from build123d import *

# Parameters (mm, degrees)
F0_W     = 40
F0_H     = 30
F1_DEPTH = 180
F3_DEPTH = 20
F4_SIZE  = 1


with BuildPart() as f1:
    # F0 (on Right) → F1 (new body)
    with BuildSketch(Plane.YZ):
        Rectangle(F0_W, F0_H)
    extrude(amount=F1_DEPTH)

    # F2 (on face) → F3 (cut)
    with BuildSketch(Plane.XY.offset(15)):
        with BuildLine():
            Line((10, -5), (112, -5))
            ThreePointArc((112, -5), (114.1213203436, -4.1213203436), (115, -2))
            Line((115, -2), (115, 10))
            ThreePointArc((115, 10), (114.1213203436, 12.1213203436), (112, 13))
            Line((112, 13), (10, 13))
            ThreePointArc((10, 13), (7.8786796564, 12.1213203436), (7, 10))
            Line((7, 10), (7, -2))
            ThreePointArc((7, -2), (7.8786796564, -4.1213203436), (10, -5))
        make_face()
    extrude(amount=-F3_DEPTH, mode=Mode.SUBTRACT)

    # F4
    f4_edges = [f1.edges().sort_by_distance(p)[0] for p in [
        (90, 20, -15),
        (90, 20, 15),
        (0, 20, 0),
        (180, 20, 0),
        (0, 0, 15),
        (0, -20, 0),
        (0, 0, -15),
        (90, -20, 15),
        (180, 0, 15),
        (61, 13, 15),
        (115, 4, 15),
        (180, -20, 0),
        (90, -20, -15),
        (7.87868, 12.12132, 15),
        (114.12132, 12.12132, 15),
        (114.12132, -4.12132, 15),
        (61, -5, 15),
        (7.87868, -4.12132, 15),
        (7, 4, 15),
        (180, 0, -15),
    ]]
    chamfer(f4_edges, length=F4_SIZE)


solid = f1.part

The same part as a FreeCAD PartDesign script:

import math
import FreeCAD as App
import Part
import Sketcher

V = App.Vector
Q = App.Units.Quantity


def edges_at(feature, points):
    """Names of the edges that pass closest to the given points."""
    edges = feature.Shape.Edges
    near = lambda p: min(range(len(edges)), key=lambda i: edges[i].distToShape(Part.Vertex(*p))[0])
    return sorted({f"Edge{near(p) + 1}" for p in points})

doc = App.newDocument("Part")
body = doc.addObject("PartDesign::Body", "Body")

# Sketch on YZ plane
sketch1 = doc.addObject("Sketcher::SketchObject", "Sketch")
body.addObject(sketch1)
sketch1.AttachmentSupport = (doc.YZ_Plane, [""])
sketch1.MapMode = "FlatFace"
sketch1.addGeometry([
    Part.LineSegment(V(-20, 15, 0), V(-20, -15, 0)),
    Part.LineSegment(V(-20, -15, 0), V(20, -15, 0)),
    Part.LineSegment(V(20, -15, 0), V(20, 15, 0)),
    Part.LineSegment(V(20, 15, 0), V(-20, 15, 0)),
], False)
sketch1.addConstraint([
    Sketcher.Constraint("Coincident", 0, 2, 1, 1),
    Sketcher.Constraint("Coincident", 1, 2, 2, 1),
    Sketcher.Constraint("Coincident", 2, 2, 3, 1),
    Sketcher.Constraint("Coincident", 3, 2, 0, 1),
    Sketcher.Constraint("Vertical", 0),
    Sketcher.Constraint("Horizontal", 1),
    Sketcher.Constraint("Vertical", 2),
    Sketcher.Constraint("Horizontal", 3),
    Sketcher.Constraint("Symmetric", 0, 2, 2, 2, -1, 1),
    Sketcher.Constraint("DistanceX", 1, 1, 1, 2, Q("40 mm")),
    Sketcher.Constraint("DistanceY", 0, 2, 0, 1, Q("30 mm")),
])
pad1 = doc.addObject("PartDesign::Pad", "Pad")
body.addObject(pad1)
pad1.Profile = sketch1
pad1.Length = 180

# Sketch on XY plane
sketch2 = doc.addObject("Sketcher::SketchObject", "Sketch001")
body.addObject(sketch2)
sketch2.AttachmentSupport = (doc.XY_Plane, [""])
sketch2.MapMode = "FlatFace"
sketch2.AttachmentOffset = App.Placement(V(0, 0, 15), App.Rotation())
sketch2.addGeometry([
    Part.LineSegment(V(10, -5, 0), V(112, -5, 0)),  # 0
    Part.ArcOfCircle(Part.Circle(V(112, -2, 0), V(0, 0, 1), 3), math.radians(-90), math.radians(0)),  # 1
    Part.LineSegment(V(115, -2, 0), V(115, 10, 0)),  # 2
    Part.ArcOfCircle(Part.Circle(V(112, 10, 0), V(0, 0, 1), 3), math.radians(0), math.radians(90)),  # 3
    Part.LineSegment(V(112, 13, 0), V(10, 13, 0)),  # 4
    Part.ArcOfCircle(Part.Circle(V(10, 10, 0), V(0, 0, 1), 3), math.radians(90), math.radians(180)),  # 5
    Part.LineSegment(V(7, 10, 0), V(7, -2, 0)),  # 6
    Part.ArcOfCircle(Part.Circle(V(10, -2, 0), V(0, 0, 1), 3), math.radians(180), math.radians(270)),  # 7
], False)
sketch2.addConstraint([
    Sketcher.Constraint("Tangent", 0, 2, 1, 1),
    Sketcher.Constraint("Tangent", 1, 2, 2, 1),
    Sketcher.Constraint("Tangent", 2, 2, 3, 1),
    Sketcher.Constraint("Tangent", 3, 2, 4, 1),
    Sketcher.Constraint("Tangent", 4, 2, 5, 1),
    Sketcher.Constraint("Tangent", 5, 2, 6, 1),
    Sketcher.Constraint("Tangent", 6, 2, 7, 1),
    Sketcher.Constraint("Tangent", 7, 2, 0, 1),
    Sketcher.Constraint("Horizontal", 0),
    Sketcher.Constraint("Vertical", 2),
    Sketcher.Constraint("Horizontal", 4),
    Sketcher.Constraint("Vertical", 6),
    Sketcher.Constraint("Equal", 1, 3),
    Sketcher.Constraint("Equal", 3, 5),
    Sketcher.Constraint("Equal", 5, 7),
    Sketcher.Constraint("Radius", 1, Q("3 mm")),
    Sketcher.Constraint("DistanceX", 0, 1, 0, 2, Q("102 mm")),
    Sketcher.Constraint("DistanceY", 2, 1, 2, 2, Q("12 mm")),
    Sketcher.Constraint("DistanceX", -1, 1, 1, 3, Q("112 mm")),
    Sketcher.Constraint("DistanceY", 1, 3, -1, 1, Q("2 mm")),
])
pocket1 = doc.addObject("PartDesign::Pocket", "Pocket")
body.addObject(pocket1)
pocket1.Profile = sketch2
pocket1.Length = 20
doc.recompute()

chamfer = doc.addObject("PartDesign::Chamfer", "Chamfer")
body.addObject(chamfer)
chamfer.Base = (pocket1, edges_at(pocket1, [
    (90, 20, -15),
    (90, 20, 15),
    (0, 20, 0),
    (180, 20, 0),
    (0, 0, 15),
    (0, -20, 0),
    (0, 0, -15),
    (90, -20, 15),
    (180, 0, 15),
    (61, 13, 15),
    (115, 4, 15),
    (180, -20, 0),
    (90, -20, -15),
    (7.879, 12.121, 15),
    (114.121, 12.121, 15),
    (114.121, -4.121, 15),
    (61, -5, 15),
    (7.879, -4.121, 15),
    (7, 4, 15),
    (180, 0, -15),
]))
chamfer.Size = 1

doc.recompute()
